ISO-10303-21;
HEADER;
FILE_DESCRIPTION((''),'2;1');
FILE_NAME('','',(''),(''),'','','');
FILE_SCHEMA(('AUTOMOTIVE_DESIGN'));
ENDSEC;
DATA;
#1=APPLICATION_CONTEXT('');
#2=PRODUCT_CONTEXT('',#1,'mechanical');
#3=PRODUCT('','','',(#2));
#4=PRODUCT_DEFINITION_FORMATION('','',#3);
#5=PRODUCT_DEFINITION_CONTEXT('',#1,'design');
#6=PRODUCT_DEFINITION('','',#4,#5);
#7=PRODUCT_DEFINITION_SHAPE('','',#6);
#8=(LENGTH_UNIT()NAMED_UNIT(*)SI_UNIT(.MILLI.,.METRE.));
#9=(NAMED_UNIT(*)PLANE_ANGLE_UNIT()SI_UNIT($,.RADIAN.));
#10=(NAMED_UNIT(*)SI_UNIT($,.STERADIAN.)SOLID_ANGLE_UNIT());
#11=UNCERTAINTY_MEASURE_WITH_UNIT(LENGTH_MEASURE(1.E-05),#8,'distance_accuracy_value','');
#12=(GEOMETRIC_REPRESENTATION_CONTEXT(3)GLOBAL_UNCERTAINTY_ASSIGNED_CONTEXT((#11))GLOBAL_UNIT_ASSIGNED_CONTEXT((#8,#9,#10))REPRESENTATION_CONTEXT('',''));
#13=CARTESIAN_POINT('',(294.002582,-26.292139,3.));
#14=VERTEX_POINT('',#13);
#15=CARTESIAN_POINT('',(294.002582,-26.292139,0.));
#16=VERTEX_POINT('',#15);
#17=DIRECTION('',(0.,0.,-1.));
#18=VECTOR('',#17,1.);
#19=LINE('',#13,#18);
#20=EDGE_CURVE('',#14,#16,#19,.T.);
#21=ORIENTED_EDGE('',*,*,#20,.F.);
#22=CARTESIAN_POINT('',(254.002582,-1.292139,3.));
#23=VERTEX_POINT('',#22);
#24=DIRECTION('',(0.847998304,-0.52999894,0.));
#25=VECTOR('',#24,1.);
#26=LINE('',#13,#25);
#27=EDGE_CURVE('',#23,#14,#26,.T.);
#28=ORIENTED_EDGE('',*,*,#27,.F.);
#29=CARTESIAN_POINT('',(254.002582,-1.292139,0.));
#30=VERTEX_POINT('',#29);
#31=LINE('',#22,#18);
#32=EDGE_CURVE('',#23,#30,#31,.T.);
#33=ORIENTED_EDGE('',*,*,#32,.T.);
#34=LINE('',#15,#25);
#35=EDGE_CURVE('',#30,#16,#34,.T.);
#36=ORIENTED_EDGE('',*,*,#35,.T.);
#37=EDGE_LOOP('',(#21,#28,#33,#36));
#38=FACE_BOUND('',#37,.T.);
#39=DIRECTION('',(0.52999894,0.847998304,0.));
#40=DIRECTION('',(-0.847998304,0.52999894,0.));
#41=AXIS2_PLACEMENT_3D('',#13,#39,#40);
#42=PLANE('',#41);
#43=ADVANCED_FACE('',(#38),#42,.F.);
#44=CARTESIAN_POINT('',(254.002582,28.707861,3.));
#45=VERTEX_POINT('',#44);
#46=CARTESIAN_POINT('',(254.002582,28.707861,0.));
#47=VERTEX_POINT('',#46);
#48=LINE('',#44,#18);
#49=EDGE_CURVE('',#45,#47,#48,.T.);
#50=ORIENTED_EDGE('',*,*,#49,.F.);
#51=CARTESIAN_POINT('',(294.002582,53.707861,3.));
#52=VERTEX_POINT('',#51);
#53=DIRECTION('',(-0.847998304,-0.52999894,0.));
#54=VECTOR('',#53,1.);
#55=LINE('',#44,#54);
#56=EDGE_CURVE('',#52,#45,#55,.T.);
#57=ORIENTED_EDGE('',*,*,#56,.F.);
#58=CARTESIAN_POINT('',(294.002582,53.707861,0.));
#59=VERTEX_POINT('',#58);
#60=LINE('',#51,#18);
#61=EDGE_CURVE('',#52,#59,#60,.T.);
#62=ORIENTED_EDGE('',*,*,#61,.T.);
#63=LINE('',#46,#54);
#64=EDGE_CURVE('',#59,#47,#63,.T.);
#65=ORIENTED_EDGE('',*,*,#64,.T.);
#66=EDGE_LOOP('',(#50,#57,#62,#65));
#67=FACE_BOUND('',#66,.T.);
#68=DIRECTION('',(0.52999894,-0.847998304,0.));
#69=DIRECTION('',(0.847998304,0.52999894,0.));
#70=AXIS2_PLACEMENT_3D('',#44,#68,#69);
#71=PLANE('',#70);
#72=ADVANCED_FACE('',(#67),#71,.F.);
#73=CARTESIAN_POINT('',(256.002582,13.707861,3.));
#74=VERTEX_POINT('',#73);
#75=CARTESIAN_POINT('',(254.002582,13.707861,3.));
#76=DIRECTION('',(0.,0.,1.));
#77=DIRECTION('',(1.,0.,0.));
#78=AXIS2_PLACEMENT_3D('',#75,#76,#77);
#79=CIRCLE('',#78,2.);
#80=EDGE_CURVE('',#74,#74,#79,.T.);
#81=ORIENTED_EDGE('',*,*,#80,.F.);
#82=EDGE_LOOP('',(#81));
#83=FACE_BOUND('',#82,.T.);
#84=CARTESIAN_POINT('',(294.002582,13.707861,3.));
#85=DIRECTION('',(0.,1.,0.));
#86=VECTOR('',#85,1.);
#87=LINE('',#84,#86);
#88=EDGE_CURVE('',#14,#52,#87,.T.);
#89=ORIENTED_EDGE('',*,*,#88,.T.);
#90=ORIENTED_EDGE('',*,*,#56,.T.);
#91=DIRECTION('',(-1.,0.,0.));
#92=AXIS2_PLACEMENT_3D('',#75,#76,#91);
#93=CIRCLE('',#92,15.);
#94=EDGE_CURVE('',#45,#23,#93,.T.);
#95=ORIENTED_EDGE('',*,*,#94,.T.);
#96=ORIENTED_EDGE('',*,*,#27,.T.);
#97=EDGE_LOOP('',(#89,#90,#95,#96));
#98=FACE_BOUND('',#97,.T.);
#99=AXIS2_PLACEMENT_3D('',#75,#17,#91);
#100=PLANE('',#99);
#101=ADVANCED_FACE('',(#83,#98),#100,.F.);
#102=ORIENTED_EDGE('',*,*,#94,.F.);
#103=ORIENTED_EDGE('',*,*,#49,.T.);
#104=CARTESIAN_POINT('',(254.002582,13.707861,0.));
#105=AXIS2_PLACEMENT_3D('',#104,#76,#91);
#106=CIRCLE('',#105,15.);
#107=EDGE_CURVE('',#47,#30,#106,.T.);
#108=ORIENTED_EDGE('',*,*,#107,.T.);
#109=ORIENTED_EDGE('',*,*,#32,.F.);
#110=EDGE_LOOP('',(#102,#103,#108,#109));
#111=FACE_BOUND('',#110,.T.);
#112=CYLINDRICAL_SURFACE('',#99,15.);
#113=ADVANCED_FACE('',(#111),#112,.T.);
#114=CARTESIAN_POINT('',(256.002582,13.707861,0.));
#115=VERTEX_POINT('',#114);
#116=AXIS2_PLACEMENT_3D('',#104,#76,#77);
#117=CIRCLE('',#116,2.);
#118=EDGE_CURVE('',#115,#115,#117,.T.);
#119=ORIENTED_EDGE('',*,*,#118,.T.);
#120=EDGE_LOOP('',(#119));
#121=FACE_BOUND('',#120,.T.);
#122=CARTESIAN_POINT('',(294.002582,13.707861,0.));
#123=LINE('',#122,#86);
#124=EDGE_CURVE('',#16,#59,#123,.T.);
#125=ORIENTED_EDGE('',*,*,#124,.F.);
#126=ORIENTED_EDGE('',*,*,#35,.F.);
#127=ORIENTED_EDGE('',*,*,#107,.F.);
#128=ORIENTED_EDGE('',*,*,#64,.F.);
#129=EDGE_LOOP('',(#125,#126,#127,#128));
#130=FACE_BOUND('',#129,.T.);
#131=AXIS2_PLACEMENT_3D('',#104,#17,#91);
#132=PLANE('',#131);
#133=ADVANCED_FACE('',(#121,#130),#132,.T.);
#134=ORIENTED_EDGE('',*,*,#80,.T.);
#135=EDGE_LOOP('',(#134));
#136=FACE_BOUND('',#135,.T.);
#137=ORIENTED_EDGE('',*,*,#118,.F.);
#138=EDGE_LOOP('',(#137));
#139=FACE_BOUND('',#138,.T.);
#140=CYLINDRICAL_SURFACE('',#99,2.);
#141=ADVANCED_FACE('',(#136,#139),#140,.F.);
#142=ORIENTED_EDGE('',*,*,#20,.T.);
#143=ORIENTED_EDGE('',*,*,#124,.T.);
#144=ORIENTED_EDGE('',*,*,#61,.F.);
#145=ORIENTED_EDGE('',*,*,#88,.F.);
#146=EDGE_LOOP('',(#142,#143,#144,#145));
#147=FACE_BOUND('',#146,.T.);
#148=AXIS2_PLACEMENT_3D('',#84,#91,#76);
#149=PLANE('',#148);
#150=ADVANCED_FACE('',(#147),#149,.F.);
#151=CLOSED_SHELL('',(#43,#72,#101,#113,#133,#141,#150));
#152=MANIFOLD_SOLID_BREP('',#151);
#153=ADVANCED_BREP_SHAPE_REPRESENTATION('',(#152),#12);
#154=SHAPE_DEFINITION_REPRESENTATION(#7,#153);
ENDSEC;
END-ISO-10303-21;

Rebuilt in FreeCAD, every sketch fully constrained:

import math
import FreeCAD as App
import Part
import Sketcher

V = App.Vector

doc = App.newDocument("Part")
body = doc.addObject("PartDesign::Body", "Body")

# Sketch on XY plane
sketch1 = body.newObject("Sketcher::SketchObject", "Sketch")
sketch1.AttachmentSupport = (doc.getObject("XY_Plane"), [""])
sketch1.MapMode = "FlatFace"
sketch1.addGeometry(Part.LineSegment(V(294, 53.7, 0), V(254, 28.7, 0)), False)
sketch1.addGeometry(Part.ArcOfCircle(Part.Circle(V(254, 13.7, 0), V(0, 0, 1), 15), math.radians(90), math.radians(270)), False)
sketch1.addGeometry(Part.LineSegment(V(254, -1.3, 0), V(294, -26.3, 0)), False)
sketch1.addGeometry(Part.LineSegment(V(294, -26.3, 0), V(294, 53.7, 0)), False)
sketch1.addGeometry(Part.Circle(V(254, 13.7, 0), V(0, 0, 1), 2), False)
sketch1.addConstraint(Sketcher.Constraint("Coincident", 0, 2, 1, 1))
sketch1.addConstraint(Sketcher.Constraint("Coincident", 1, 2, 2, 1))
sketch1.addConstraint(Sketcher.Constraint("Coincident", 2, 2, 3, 1))
sketch1.addConstraint(Sketcher.Constraint("Coincident", 3, 2, 0, 1))
sketch1.addConstraint(Sketcher.Constraint("Vertical", 3))
sketch1.addConstraint(Sketcher.Constraint("Coincident", 4, 3, 1, 3))
sketch1.addConstraint(Sketcher.Constraint("Vertical", 4, 3, 0, 2))
sketch1.addConstraint(Sketcher.Constraint("Vertical", 0, 2, 1, 2))
sketch1.addConstraint(Sketcher.Constraint("Equal", 0, 2))
sketch1.addConstraint(Sketcher.Constraint("Diameter", 4, 4.0))
sketch1.addConstraint(Sketcher.Constraint("Radius", 1, 15.0))
sketch1.addConstraint(Sketcher.Constraint("DistanceY", 3, 1, 3, 2, 80.0))
sketch1.addConstraint(Sketcher.Constraint("DistanceX", 1, 2, 2, 2, 40.0))
sketch1.addConstraint(Sketcher.Constraint("DistanceX", -1, 1, 1, 3, 254.002582))
sketch1.addConstraint(Sketcher.Constraint("DistanceY", -1, 1, 1, 3, 13.707861))
pad1 = body.newObject("PartDesign::Pad", "Pad")
pad1.Profile = sketch1
pad1.Length = 3

doc.recompute()
